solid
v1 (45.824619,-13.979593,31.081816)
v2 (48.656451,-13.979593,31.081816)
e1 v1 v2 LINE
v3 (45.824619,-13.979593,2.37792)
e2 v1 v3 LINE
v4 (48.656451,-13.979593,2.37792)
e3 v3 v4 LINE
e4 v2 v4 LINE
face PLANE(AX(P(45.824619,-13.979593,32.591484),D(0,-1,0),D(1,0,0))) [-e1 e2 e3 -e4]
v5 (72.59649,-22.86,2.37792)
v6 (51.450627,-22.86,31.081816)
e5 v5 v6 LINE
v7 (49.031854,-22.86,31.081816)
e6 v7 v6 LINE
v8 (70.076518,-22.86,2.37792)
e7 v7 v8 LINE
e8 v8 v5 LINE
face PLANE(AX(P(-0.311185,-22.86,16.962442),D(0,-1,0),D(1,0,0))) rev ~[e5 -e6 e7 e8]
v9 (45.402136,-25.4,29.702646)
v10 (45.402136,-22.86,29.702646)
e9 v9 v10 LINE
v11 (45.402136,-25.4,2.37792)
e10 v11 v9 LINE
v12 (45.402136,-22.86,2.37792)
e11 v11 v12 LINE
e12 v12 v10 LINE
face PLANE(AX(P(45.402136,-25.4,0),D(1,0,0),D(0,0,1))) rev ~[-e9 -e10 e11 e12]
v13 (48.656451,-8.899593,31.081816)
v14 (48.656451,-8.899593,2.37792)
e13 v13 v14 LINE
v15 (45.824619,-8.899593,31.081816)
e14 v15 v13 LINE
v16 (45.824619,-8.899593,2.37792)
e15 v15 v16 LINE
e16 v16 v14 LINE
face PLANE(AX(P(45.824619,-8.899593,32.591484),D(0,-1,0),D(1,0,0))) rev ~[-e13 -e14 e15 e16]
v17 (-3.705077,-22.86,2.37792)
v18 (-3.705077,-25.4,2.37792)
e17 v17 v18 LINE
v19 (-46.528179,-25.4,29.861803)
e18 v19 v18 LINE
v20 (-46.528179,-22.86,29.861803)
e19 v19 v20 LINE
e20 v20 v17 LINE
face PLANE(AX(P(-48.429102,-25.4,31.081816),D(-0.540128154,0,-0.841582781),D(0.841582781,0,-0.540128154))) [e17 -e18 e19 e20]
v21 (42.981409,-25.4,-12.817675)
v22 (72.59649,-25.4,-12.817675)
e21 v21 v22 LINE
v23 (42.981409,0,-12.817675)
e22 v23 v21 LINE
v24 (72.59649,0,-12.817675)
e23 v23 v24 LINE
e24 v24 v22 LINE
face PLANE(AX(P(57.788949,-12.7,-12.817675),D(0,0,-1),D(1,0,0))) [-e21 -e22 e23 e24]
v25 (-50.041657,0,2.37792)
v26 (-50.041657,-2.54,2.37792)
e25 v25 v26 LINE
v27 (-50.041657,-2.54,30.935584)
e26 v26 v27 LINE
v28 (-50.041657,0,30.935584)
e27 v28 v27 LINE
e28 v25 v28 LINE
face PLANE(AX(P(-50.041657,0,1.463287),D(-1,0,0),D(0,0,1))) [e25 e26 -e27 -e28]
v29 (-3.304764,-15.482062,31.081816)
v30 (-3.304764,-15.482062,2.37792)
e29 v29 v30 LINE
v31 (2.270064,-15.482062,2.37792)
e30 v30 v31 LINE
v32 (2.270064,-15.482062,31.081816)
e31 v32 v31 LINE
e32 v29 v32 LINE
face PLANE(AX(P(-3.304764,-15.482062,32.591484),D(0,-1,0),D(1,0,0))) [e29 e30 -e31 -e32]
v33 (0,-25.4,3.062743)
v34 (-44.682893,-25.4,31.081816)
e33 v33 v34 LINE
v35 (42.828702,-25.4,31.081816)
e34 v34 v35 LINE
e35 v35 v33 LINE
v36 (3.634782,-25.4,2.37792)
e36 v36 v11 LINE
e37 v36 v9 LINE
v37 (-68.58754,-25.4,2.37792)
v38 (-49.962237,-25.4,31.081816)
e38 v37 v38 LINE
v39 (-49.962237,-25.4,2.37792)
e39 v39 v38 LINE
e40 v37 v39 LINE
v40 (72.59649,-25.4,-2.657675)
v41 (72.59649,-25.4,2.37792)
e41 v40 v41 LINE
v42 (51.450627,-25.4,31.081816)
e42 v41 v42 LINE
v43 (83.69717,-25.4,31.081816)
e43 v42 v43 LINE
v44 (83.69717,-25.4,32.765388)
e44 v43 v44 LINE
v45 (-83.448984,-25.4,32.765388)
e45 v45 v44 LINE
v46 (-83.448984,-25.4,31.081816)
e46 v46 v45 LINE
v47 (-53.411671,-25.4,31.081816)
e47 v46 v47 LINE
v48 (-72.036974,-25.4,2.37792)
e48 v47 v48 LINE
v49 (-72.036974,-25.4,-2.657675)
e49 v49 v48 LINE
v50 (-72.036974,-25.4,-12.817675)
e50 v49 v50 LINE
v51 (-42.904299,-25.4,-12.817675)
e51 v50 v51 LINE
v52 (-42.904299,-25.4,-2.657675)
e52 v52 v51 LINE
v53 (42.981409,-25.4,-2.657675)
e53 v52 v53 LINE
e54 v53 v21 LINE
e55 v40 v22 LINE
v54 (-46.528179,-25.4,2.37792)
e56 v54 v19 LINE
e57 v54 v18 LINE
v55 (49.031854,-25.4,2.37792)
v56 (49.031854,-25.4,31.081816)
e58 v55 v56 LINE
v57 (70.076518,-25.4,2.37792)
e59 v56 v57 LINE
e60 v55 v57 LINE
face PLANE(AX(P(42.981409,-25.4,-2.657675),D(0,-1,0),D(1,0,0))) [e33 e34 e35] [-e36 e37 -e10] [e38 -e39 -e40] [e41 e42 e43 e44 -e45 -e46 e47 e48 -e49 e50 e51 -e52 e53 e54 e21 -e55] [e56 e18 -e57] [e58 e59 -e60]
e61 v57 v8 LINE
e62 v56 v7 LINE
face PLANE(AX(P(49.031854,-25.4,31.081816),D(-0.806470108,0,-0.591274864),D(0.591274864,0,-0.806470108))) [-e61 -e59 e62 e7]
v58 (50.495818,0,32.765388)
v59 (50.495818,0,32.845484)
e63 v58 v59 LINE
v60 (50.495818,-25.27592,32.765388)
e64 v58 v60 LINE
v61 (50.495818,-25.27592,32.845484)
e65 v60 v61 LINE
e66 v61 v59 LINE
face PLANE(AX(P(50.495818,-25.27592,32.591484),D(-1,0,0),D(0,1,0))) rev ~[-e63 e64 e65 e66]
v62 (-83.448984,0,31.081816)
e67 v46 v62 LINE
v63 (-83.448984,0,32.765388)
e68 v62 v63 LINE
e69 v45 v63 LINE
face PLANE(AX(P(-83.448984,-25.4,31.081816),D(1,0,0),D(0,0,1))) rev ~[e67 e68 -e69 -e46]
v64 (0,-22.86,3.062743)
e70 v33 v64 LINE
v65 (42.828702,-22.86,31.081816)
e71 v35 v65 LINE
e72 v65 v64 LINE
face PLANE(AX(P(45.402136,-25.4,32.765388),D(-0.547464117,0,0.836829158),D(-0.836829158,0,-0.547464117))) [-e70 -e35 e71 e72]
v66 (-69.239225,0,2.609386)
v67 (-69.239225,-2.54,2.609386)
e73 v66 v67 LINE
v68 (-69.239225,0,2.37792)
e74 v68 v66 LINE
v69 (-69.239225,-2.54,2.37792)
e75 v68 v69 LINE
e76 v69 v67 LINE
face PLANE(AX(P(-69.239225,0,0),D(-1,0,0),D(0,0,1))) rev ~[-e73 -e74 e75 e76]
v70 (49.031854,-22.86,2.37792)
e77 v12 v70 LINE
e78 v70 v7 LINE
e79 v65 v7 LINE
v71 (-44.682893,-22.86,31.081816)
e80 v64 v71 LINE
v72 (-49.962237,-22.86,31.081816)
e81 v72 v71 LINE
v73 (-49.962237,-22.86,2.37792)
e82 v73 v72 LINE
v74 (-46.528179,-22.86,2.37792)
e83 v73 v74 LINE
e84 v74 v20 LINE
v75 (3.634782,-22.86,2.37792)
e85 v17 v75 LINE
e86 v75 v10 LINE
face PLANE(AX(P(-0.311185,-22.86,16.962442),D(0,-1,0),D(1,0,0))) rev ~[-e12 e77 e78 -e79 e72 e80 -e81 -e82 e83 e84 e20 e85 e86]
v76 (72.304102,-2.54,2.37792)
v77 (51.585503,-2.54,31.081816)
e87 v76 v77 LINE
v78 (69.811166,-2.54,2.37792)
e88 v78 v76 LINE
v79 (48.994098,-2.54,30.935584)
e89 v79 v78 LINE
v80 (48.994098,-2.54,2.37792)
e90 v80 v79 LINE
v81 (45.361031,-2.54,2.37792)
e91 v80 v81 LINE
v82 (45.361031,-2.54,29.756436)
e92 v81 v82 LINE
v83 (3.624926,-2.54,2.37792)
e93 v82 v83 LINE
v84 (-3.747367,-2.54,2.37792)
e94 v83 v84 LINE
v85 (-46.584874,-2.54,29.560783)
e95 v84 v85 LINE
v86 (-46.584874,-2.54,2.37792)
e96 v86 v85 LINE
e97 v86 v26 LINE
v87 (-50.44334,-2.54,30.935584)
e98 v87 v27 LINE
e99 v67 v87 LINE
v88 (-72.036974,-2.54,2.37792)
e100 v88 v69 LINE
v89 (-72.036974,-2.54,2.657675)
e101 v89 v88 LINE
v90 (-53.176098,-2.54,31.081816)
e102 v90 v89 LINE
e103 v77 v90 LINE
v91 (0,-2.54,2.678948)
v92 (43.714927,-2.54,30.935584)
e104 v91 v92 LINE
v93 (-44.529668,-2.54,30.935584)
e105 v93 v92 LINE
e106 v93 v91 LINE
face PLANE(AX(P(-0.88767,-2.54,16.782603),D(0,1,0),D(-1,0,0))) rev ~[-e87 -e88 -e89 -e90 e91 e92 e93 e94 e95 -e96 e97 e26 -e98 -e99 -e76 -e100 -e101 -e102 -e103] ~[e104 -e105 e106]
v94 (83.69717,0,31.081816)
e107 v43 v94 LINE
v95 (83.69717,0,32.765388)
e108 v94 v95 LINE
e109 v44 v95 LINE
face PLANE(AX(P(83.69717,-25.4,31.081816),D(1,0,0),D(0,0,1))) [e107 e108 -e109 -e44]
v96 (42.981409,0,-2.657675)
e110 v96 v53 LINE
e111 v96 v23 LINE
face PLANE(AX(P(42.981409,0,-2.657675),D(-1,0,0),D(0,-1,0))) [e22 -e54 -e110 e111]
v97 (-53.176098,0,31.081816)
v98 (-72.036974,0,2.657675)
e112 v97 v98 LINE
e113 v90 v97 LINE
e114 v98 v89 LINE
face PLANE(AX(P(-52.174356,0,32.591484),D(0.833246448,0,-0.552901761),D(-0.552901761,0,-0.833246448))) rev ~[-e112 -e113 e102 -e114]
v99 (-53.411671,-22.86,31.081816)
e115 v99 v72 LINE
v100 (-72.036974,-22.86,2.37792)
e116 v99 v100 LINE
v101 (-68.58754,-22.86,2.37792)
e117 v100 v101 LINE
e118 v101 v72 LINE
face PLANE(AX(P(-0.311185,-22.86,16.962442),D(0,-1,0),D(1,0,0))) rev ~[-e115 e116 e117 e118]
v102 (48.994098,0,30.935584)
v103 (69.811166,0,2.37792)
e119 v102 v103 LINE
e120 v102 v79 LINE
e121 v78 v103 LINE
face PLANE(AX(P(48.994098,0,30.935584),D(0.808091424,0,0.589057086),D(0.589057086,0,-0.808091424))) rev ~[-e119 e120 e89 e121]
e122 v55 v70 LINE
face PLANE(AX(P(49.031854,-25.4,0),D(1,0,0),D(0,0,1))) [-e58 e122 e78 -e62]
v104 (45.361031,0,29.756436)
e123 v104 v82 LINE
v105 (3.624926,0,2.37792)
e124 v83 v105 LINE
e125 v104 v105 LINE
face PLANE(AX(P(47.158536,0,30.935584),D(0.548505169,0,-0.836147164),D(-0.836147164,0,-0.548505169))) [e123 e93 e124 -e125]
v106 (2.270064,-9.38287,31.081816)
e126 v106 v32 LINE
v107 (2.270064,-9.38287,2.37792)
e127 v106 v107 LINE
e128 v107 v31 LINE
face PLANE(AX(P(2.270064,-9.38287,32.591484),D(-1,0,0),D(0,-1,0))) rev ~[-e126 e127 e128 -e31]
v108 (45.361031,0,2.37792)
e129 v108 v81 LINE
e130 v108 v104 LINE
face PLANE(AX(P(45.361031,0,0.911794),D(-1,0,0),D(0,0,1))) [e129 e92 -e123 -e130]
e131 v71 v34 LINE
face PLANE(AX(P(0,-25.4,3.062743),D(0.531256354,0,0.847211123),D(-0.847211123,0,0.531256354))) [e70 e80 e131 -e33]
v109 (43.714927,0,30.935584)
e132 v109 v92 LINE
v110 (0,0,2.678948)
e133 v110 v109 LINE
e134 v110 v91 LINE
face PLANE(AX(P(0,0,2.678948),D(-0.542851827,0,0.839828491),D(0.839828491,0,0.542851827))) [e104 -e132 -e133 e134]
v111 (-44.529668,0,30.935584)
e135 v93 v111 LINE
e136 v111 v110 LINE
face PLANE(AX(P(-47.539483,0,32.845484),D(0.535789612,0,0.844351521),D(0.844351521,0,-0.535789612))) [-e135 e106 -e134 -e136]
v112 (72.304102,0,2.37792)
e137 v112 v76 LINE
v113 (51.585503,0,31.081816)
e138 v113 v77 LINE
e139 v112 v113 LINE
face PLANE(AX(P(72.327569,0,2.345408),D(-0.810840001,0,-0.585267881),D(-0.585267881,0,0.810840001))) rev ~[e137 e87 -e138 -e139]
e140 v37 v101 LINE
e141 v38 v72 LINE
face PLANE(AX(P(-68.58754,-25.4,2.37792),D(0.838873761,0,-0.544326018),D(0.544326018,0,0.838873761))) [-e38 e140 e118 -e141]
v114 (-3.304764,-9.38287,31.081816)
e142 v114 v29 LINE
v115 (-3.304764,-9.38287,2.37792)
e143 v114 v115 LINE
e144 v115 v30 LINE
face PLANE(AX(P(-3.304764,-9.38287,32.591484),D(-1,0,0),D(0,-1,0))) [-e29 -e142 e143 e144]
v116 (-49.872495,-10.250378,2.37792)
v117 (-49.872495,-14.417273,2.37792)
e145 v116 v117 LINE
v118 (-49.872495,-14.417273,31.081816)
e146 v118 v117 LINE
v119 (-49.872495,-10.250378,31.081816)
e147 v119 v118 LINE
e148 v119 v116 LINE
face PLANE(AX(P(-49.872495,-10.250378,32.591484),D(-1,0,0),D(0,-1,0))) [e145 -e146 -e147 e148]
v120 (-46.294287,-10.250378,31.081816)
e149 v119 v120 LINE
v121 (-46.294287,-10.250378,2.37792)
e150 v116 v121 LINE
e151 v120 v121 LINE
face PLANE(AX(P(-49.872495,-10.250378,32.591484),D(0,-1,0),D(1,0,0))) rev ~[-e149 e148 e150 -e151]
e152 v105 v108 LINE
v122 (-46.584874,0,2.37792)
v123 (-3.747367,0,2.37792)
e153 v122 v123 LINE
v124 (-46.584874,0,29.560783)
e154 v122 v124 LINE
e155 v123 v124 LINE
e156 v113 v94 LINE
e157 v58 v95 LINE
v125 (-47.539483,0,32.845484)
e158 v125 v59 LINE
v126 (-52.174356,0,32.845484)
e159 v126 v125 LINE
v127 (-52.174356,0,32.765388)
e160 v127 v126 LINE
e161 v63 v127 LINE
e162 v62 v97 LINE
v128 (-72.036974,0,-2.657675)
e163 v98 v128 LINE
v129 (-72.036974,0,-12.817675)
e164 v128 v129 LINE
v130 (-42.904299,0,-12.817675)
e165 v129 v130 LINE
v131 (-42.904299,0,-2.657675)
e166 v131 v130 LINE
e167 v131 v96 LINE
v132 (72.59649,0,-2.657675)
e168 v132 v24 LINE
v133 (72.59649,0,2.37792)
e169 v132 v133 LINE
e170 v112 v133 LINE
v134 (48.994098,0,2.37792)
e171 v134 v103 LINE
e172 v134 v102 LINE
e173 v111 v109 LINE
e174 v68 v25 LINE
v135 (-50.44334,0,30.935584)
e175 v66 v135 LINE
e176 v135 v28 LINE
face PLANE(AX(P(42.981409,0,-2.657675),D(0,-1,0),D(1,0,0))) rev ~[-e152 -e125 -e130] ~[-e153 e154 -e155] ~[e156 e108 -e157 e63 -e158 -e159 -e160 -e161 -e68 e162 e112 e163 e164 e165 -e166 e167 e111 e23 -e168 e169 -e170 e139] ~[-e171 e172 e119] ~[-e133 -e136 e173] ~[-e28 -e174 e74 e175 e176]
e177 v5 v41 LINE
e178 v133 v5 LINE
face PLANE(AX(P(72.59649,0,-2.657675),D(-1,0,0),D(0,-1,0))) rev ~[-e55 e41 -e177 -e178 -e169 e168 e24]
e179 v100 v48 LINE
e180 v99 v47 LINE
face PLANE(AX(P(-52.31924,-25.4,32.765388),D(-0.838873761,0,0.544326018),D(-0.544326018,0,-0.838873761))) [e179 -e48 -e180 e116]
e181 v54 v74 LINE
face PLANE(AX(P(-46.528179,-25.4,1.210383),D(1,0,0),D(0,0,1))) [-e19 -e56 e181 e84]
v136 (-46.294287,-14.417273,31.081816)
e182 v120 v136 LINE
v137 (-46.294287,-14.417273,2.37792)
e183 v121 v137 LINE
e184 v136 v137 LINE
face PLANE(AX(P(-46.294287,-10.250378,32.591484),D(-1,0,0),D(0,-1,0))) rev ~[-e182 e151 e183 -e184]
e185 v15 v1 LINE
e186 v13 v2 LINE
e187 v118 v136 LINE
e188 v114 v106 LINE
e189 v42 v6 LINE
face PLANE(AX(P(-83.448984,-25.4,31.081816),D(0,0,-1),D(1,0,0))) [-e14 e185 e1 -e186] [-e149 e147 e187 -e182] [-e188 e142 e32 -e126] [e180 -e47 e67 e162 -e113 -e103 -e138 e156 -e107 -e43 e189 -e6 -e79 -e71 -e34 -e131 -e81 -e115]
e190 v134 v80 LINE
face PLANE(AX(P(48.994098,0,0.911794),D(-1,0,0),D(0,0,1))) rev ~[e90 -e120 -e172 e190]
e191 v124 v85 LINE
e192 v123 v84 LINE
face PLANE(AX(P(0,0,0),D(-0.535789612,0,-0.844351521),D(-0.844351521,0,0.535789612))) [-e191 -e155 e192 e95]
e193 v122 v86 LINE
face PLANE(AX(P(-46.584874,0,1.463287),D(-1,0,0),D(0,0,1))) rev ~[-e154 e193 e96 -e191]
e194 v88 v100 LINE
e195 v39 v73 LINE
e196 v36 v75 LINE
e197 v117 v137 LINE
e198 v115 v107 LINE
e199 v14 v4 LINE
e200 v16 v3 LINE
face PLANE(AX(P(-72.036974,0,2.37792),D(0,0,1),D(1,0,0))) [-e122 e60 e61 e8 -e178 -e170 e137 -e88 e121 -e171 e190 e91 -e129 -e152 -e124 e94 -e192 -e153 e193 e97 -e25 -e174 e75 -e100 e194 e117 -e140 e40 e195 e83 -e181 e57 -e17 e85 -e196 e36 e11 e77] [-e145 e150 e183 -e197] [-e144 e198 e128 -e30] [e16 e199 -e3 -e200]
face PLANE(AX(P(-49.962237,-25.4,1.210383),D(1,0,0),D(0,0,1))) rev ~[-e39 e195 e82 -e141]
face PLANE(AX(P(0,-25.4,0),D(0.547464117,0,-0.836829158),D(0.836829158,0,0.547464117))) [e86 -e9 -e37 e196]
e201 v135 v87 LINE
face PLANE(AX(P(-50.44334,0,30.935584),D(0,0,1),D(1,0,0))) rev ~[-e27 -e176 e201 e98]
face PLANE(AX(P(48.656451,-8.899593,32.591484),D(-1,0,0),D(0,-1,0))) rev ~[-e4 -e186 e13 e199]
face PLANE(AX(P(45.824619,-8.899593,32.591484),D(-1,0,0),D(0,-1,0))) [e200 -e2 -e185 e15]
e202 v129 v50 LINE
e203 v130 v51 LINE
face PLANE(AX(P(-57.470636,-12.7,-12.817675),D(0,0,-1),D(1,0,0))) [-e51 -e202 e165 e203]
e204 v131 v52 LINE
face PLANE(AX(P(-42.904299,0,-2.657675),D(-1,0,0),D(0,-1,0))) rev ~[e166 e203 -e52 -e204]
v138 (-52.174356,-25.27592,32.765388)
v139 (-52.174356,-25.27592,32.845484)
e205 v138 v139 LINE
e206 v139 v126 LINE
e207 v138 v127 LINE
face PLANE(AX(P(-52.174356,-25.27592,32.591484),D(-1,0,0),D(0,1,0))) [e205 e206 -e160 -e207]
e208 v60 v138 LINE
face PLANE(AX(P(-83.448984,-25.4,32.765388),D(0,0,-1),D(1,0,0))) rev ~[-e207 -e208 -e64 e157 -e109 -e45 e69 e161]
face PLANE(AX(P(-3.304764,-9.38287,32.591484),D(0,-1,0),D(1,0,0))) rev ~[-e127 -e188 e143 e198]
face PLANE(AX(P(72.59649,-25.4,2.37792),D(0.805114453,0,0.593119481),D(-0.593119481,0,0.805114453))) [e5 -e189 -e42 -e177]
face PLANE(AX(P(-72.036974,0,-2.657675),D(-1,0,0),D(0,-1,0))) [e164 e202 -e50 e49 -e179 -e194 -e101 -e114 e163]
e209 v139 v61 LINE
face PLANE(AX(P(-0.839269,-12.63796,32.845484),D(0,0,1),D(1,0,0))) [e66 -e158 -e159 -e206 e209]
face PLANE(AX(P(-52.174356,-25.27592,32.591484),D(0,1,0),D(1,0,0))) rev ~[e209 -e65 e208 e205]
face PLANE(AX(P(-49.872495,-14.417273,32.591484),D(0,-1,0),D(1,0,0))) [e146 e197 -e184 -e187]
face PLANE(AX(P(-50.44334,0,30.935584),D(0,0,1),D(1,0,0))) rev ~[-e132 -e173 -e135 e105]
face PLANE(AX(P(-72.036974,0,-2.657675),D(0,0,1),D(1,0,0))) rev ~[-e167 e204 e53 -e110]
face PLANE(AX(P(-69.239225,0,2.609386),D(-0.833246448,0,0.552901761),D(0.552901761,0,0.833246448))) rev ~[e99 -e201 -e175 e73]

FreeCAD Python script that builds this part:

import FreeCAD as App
import Part
import Sketcher
Q = App.Units.Quantity

doc = App.newDocument("Part")
params = doc.addObject("Spreadsheet::Sheet", "Params")
for row, (alias, value) in enumerate([
    ("pad1_length", "1 in"),
    ("pad2_length", "0.1 in"),
    ("pad3_length", "0.1 in"),
    ("pad4_length", "0.01 in"),
    ("pad5_length", "0.1 in"),
    ("pad6_length", "0.1 in"),
    ("pad7_length", "0.1 in"),
    ("pad8_length", "0.1 in"),
    ("pad9_length", "0.1 in"),
    ("pad10_length", "0.1 in"),
    ("pad11_length", "1.3 in"),
    ("pad12_length", "1.3 in"),
    ("sketch13_height", "0.2 in"),
    ("pad13_length", "1.3 in"),
    ("pad14_length", "1 in"),
    ("sketch15_height", "1 in"),
    ("pad15_length", "0.4 in"),
    ("sketch16_height", "1 in"),
    ("pad16_length", "0.4 in"),
], start=1):
    params.set(f"A{row}", alias)
    params.set(f"B{row}", "=" + value)
    params.setAlias(f"B{row}", alias)

body = doc.addObject("PartDesign::Body", "Body")

# Sketch on XZ plane
sketch1 = body.newObject("Sketcher::SketchObject", "Sketch")
sketch1.AttachmentSupport = (doc.getObject("XZ_Plane"), [""])
sketch1.MapMode = "FlatFace"
sketch1.addGeometry([
    Part.LineSegment(App.Vector(-72, 2, 0), App.Vector(-72, -3, 0)),
    Part.LineSegment(App.Vector(-72, -3, 0), App.Vector(73, -3, 0)),
    Part.LineSegment(App.Vector(73, -3, 0), App.Vector(73, 2, 0)),
    Part.LineSegment(App.Vector(73, 2, 0), App.Vector(-72, 2, 0)),
], False)
sketch1.addConstraint([
    Sketcher.Constraint("Coincident", 0, 2, 1, 1),
    Sketcher.Constraint("Coincident", 1, 2, 2, 1),
    Sketcher.Constraint("Coincident", 2, 2, 3, 1),
    Sketcher.Constraint("Coincident", 3, 2, 0, 1),
    Sketcher.Constraint("Vertical", 0),
    Sketcher.Constraint("Horizontal", 1),
    Sketcher.Constraint("Vertical", 2),
    Sketcher.Constraint("Horizontal", 3),
    Sketcher.Constraint("DistanceX", 1, 1, 1, 2, Q("144.633465 mm")),
    Sketcher.Constraint("DistanceY", 0, 2, 0, 1, Q("5.035594 mm")),
    Sketcher.Constraint("DistanceX", -1, 1, 1, 2, Q("72.59649 mm")),
    Sketcher.Constraint("DistanceY", -1, 1, 2, 2, Q("2.37792 mm")),
])
pad1 = body.newObject("PartDesign::Pad", "Pad")
pad1.Profile = sketch1
pad1.setExpression("Length", "Params.pad1_length")

# Sketch on XZ plane
sketch2 = body.newObject("Sketcher::SketchObject", "Sketch001")
sketch2.AttachmentSupport = (doc.getObject("XZ_Plane"), [""])
sketch2.MapMode = "FlatFace"
sketch2.addGeometry([
    Part.LineSegment(App.Vector(-72, 2.7, 0), App.Vector(-72, 0, 0)),  # 0
    Part.LineSegment(App.Vector(-72, 0, 0), App.Vector(-69.2, 0, 0)),  # 1
    Part.LineSegment(App.Vector(-69.2, 0, 0), App.Vector(-69.2, 2.6, 0)),  # 2
    Part.LineSegment(App.Vector(-69.2, 2.6, 0), App.Vector(-50.4, 30.9, 0)),  # 3
    Part.LineSegment(App.Vector(-50.4, 30.9, 0), App.Vector(49, 30.9, 0)),  # 4
    Part.LineSegment(App.Vector(49, 30.9, 0), App.Vector(70, 2.1, 0)),  # 5
    Part.LineSegment(App.Vector(70, 2.1, 0), App.Vector(70, 0, 0)),  # 6
    Part.LineSegment(App.Vector(70, 0, 0), App.Vector(72.3, 0, 0)),  # 7
    Part.LineSegment(App.Vector(72.3, 0, 0), App.Vector(72.3, 2.3, 0)),  # 8
    Part.LineSegment(App.Vector(72.3, 2.3, 0), App.Vector(50.5, 32.6, 0)),  # 9
    Part.LineSegment(App.Vector(50.5, 32.6, 0), App.Vector(-52.2, 32.6, 0)),  # 10
    Part.LineSegment(App.Vector(-52.2, 32.6, 0), App.Vector(-72, 2.7, 0)),  # 11
], False)
sketch2.addConstraint([
    Sketcher.Constraint("Coincident", 0, 2, 1, 1),
    Sketcher.Constraint("Coincident", 1, 2, 2, 1),
    Sketcher.Constraint("Coincident", 2, 2, 3, 1),
    Sketcher.Constraint("Coincident", 3, 2, 4, 1),
    Sketcher.Constraint("Coincident", 4, 2, 5, 1),
    Sketcher.Constraint("Coincident", 5, 2, 6, 1),
    Sketcher.Constraint("Coincident", 6, 2, 7, 1),
    Sketcher.Constraint("Coincident", 7, 2, 8, 1),
    Sketcher.Constraint("Coincident", 8, 2, 9, 1),
    Sketcher.Constraint("Coincident", 9, 2, 10, 1),
    Sketcher.Constraint("Coincident", 10, 2, 11, 1),
    Sketcher.Constraint("Coincident", 11, 2, 0, 1),
    Sketcher.Constraint("Vertical", 0),
    Sketcher.Constraint("Horizontal", 1),
    Sketcher.Constraint("Vertical", 2),
    Sketcher.Constraint("Horizontal", 4),
    Sketcher.Constraint("Vertical", 6),
    Sketcher.Constraint("Horizontal", 7),
    Sketcher.Constraint("Vertical", 8),
    Sketcher.Constraint("Horizontal", 10),
    Sketcher.Constraint("PointOnObject", 0, 2, -1),
    Sketcher.Constraint("PointOnObject", 6, 2, -1),
    Sketcher.Constraint("Parallel", 3, 11),
    Sketcher.Constraint("DistanceX", 1, 1, 1, 2, Q("2.797749 mm")),
    Sketcher.Constraint("DistanceY", 8, 1, 8, 2, Q("2.345408 mm")),
    Sketcher.Constraint("DistanceY", 5, 2, 4, 2, Q("28.802701 mm")),
    Sketcher.Constraint("DistanceY", 4, 2, 9, 2, Q("1.655901 mm")),
    Sketcher.Constraint("DistanceY", 2, 2, 10, 2, Q("29.982098 mm")),
    Sketcher.Constraint("Distance", 3, Q("33.994981 mm")),
    Sketcher.Constraint("Distance", 9, Q("37.302151 mm")),
    Sketcher.Constraint("DistanceX", 4, 1, 4, 2, Q("99.437438 mm")),
    Sketcher.Constraint("DistanceX", 7, 1, 7, 2, Q("2.337784 mm")),
    Sketcher.Constraint("DistanceX", 10, 2, 10, 1, Q("102.670174 mm")),
    Sketcher.Constraint("DistanceY", 0, 2, 0, 1, Q("2.657675 mm")),
    Sketcher.Constraint("DistanceY", 2, 1, 2, 2, Q("2.609386 mm")),
    Sketcher.Constraint("DistanceX", 3, 2, -1, 1, Q("50.44334 mm")),
])
pad2 = body.newObject("PartDesign::Pad", "Pad001")
pad2.Profile = sketch2
pad2.setExpression("Length", "Params.pad2_length")

# Sketch on XZ plane
sketch3 = body.newObject("Sketcher::SketchObject", "Sketch002")
sketch3.AttachmentSupport = (doc.getObject("XZ_Plane"), [""])
sketch3.MapMode = "FlatFace"
sketch3.AttachmentOffset = App.Placement(App.Vector(0, 0, 1 * 25.4), App.Rotation())
sketch3.addGeometry([
    Part.LineSegment(App.Vector(-72, 2.4, 0), App.Vector(-72, -0.1, 0)),  # 0
    Part.LineSegment(App.Vector(-72, -0.1, 0), App.Vector(-68.6, 0, 0)),  # 1
    Part.LineSegment(App.Vector(-68.6, 0, 0), App.Vector(-68.6, 2.4, 0)),  # 2
    Part.LineSegment(App.Vector(-68.6, 2.4, 0), App.Vector(-50, 31.1, 0)),  # 3
    Part.LineSegment(App.Vector(-50, 31.1, 0), App.Vector(49, 31.1, 0)),  # 4
    Part.LineSegment(App.Vector(49, 31.1, 0), App.Vector(70.1, 2.4, 0)),  # 5
    Part.LineSegment(App.Vector(70.1, 2.4, 0), App.Vector(70.1, 0, 0)),  # 6
    Part.LineSegment(App.Vector(70.1, 0, 0), App.Vector(72.6, 0, 0)),  # 7
    Part.LineSegment(App.Vector(72.6, 0, 0), App.Vector(72.6, 2.4, 0)),  # 8
    Part.LineSegment(App.Vector(72.6, 2.4, 0), App.Vector(50.2, 32.8, 0)),  # 9
    Part.LineSegment(App.Vector(50.2, 32.8, 0), App.Vector(-52.3, 32.8, 0)),  # 10
    Part.LineSegment(App.Vector(-52.3, 32.8, 0), App.Vector(-72, 2.4, 0)),  # 11
], False)
sketch3.addConstraint([
    Sketcher.Constraint("Coincident", 0, 2, 1, 1),
    Sketcher.Constraint("Coincident", 1, 2, 2, 1),
    Sketcher.Constraint("Coincident", 2, 2, 3, 1),
    Sketcher.Constraint("Coincident", 3, 2, 4, 1),
    Sketcher.Constraint("Coincident", 4, 2, 5, 1),
    Sketcher.Constraint("Coincident", 5, 2, 6, 1),
    Sketcher.Constraint("Coincident", 6, 2, 7, 1),
    Sketcher.Constraint("Coincident", 7, 2, 8, 1),
    Sketcher.Constraint("Coincident", 8, 2, 9, 1),
    Sketcher.Constraint("Coincident", 9, 2, 10, 1),
    Sketcher.Constraint("Coincident", 10, 2, 11, 1),
    Sketcher.Constraint("Coincident", 11, 2, 0, 1),
    Sketcher.Constraint("Vertical", 0),
    Sketcher.Constraint("Vertical", 2),
    Sketcher.Constraint("Horizontal", 4),
    Sketcher.Constraint("Vertical", 6),
    Sketcher.Constraint("Horizontal", 7),
    Sketcher.Constraint("Vertical", 8),
    Sketcher.Constraint("Horizontal", 10),
    Sketcher.Constraint("PointOnObject", 1, 2, -1),
    Sketcher.Constraint("PointOnObject", 6, 2, -1),
    Sketcher.Constraint("Parallel", 3, 11),
    Sketcher.Constraint("Horizontal", 2, 2, 5, 2),
    Sketcher.Constraint("Horizontal", 5, 2, 8, 2),
    Sketcher.Constraint("Horizontal", 8, 2, 11, 2),
    Sketcher.Constraint("DistanceX", 4, 1, 4, 2, Q("98.994091 mm")),
    Sketcher.Constraint("DistanceY", 2, 1, 2, 2, Q("2.37792 mm")),
    Sketcher.Constraint("DistanceX", 2, 2, 10, 2, Q("16.2683 mm")),
    Sketcher.Constraint("Distance", 1, Q("3.452269 mm")),
    Sketcher.Constraint("DistanceX", 7, 1, 7, 2, Q("2.519973 mm")),
    Sketcher.Constraint("DistanceX", 10, 2, 10, 1, Q("102.529597 mm")),
    Sketcher.Constraint("DistanceY", 0, 2, 0, 1, Q("2.517797 mm")),
    Sketcher.Constraint("DistanceX", 1, 2, -1, 1, Q("68.58754 mm")),
    Sketcher.Constraint("DistanceX", -1, 1, 7, 2, Q("72.59649 mm")),
    Sketcher.Constraint("DistanceY", -1, 1, 9, 2, Q("32.765388 mm")),
    Sketcher.Constraint("Distance", 3, Q("34.217183 mm")),
])
pad3 = body.newObject("PartDesign::Pad", "Pad002")
pad3.Profile = sketch3
pad3.setExpression("Length", "Params.pad3_length")
pad3.Reversed = True

# Sketch on XY plane
sketch4 = body.newObject("Sketcher::SketchObject", "Sketch003")
sketch4.AttachmentSupport = (doc.getObject("XY_Plane"), [""])
sketch4.MapMode = "FlatFace"
sketch4.AttachmentOffset = App.Placement(App.Vector(0, 0, 32.591484), App.Rotation())
sketch4.addGeometry([
    Part.LineSegment(App.Vector(-52, 0, 0), App.Vector(-52, -25, 0)),
    Part.LineSegment(App.Vector(-52, -25, 0), App.Vector(50, -25, 0)),
    Part.LineSegment(App.Vector(50, -25, 0), App.Vector(50, 0, 0)),
    Part.LineSegment(App.Vector(50, 0, 0), App.Vector(-52, 0, 0)),
], False)
sketch4.addConstraint([
    Sketcher.Constraint("Coincident", 0, 2, 1, 1),
    Sketcher.Constraint("Coincident", 1, 2, 2, 1),
    Sketcher.Constraint("Coincident", 2, 2, 3, 1),
    Sketcher.Constraint("Coincident", 3, 2, 0, 1),
    Sketcher.Constraint("Vertical", 0),
    Sketcher.Constraint("Horizontal", 1),
    Sketcher.Constraint("Vertical", 2),
    Sketcher.Constraint("Horizontal", 3),
    Sketcher.Constraint("PointOnObject", 2, 2, -1),
    Sketcher.Constraint("DistanceY", 0, 2, 0, 1, Q("25.27592 mm")),
    Sketcher.Constraint("DistanceX", 1, 1, 1, 2, Q("102.670174 mm")),
    Sketcher.Constraint("DistanceX", -1, 1, 1, 2, Q("50.495818 mm")),
])
pad4 = body.newObject("PartDesign::Pad", "Pad003")
pad4.Profile = sketch4
pad4.setExpression("Length", "Params.pad4_length")

# Sketch on XZ plane
sketch5 = body.newObject("Sketcher::SketchObject", "Sketch004")
sketch5.AttachmentSupport = (doc.getObject("XZ_Plane"), [""])
sketch5.MapMode = "FlatFace"
sketch5.AttachmentOffset = App.Placement(App.Vector(0, 0, 1 * 25.4), App.Rotation())
sketch5.addGeometry([
    Part.LineSegment(App.Vector(-50, 32, 0), App.Vector(-50, 1.2, 0)),
    Part.LineSegment(App.Vector(-50, 1.2, 0), App.Vector(-46.5, 1.2, 0)),
    Part.LineSegment(App.Vector(-46.5, 1.2, 0), App.Vector(-46.5, 32, 0)),
    Part.LineSegment(App.Vector(-46.5, 32, 0), App.Vector(-50, 32, 0)),
], False)
sketch5.addConstraint([
    Sketcher.Constraint("Coincident", 0, 2, 1, 1),
    Sketcher.Constraint("Coincident", 1, 2, 2, 1),
    Sketcher.Constraint("Coincident", 2, 2, 3, 1),
    Sketcher.Constraint("Coincident", 3, 2, 0, 1),
    Sketcher.Constraint("Vertical", 0),
    Sketcher.Constraint("Horizontal", 1),
    Sketcher.Constraint("Vertical", 2),
    Sketcher.Constraint("Horizontal", 3),
    Sketcher.Constraint("DistanceX", 1, 1, 1, 2, Q("3.434058 mm")),
    Sketcher.Constraint("DistanceY", 0, 2, 0, 1, Q("30.774855 mm")),
    Sketcher.Constraint("DistanceX", 1, 2, -1, 1, Q("46.528179 mm")),
    Sketcher.Constraint("DistanceY", -1, 1, 2, 2, Q("31.985238 mm")),
])
pad5 = body.newObject("PartDesign::Pad", "Pad004")
pad5.Profile = sketch5
pad5.setExpression("Length", "Params.pad5_length")
pad5.Reversed = True

# Sketch on XZ plane
sketch6 = body.newObject("Sketcher::SketchObject", "Sketch005")
sketch6.AttachmentSupport = (doc.getObject("XZ_Plane"), [""])
sketch6.MapMode = "FlatFace"
sketch6.AttachmentOffset = App.Placement(App.Vector(0, 0, 1 * 25.4), App.Rotation())
sketch6.addGeometry([
    Part.LineSegment(App.Vector(45.4, 32.1, 0), App.Vector(45.4, 0, 0)),
    Part.LineSegment(App.Vector(45.4, 0, 0), App.Vector(49, 0, 0)),
    Part.LineSegment(App.Vector(49, 0, 0), App.Vector(49, 32.1, 0)),
    Part.LineSegment(App.Vector(49, 32.1, 0), App.Vector(45.4, 32.1, 0)),
], False)
sketch6.addConstraint([
    Sketcher.Constraint("Coincident", 0, 2, 1, 1),
    Sketcher.Constraint("Coincident", 1, 2, 2, 1),
    Sketcher.Constraint("Coincident", 2, 2, 3, 1),
    Sketcher.Constraint("Coincident", 3, 2, 0, 1),
    Sketcher.Constraint("Vertical", 0),
    Sketcher.Constraint("Horizontal", 1),
    Sketcher.Constraint("Vertical", 2),
    Sketcher.Constraint("Horizontal", 3),
    Sketcher.Constraint("PointOnObject", 0, 2, -1),
    Sketcher.Constraint("DistanceX", 1, 1, 1, 2, Q("3.629718 mm")),
    Sketcher.Constraint("DistanceY", 0, 2, 0, 1, Q("32.149576 mm")),
    Sketcher.Constraint("DistanceX", -1, 1, 0, 2, Q("45.402136 mm")),
])
pad6 = body.newObject("PartDesign::Pad", "Pad005")
pad6.Profile = sketch6
pad6.setExpression("Length", "Params.pad6_length")
pad6.Reversed = True

# Sketch on XZ plane
sketch7 = body.newObject("Sketcher::SketchObject", "Sketch006")
sketch7.AttachmentSupport = (doc.getObject("XZ_Plane"), [""])
sketch7.MapMode = "FlatFace"
sketch7.addGeometry([
    Part.LineSegment(App.Vector(49, 31.9, 0), App.Vector(49, 0.9, 0)),
    Part.LineSegment(App.Vector(49, 0.9, 0), App.Vector(45.4, 0.9, 0)),
    Part.LineSegment(App.Vector(45.4, 0.9, 0), App.Vector(45.4, 31.9, 0)),
    Part.LineSegment(App.Vector(45.4, 31.9, 0), App.Vector(49, 31.9, 0)),
], False)
sketch7.addConstraint([
    Sketcher.Constraint("Coincident", 0, 2, 1, 1),
    Sketcher.Constraint("Coincident", 1, 2, 2, 1),
    Sketcher.Constraint("Coincident", 2, 2, 3, 1),
    Sketcher.Constraint("Coincident", 3, 2, 0, 1),
    Sketcher.Constraint("Vertical", 0),
    Sketcher.Constraint("Horizontal", 1),
    Sketcher.Constraint("Vertical", 2),
    Sketcher.Constraint("Horizontal", 3),
    Sketcher.Constraint("DistanceY", 0, 2, 0, 1, Q("30.970801 mm")),
    Sketcher.Constraint("DistanceX", 1, 2, 1, 1, Q("3.633067 mm")),
    Sketcher.Constraint("DistanceX", -1, 1, 1, 2, Q("45.361031 mm")),
    Sketcher.Constraint("DistanceY", -1, 1, 0, 2, Q("0.911794 mm")),
])
pad7 = body.newObject("PartDesign::Pad", "Pad006")
pad7.Profile = sketch7
pad7.setExpression("Length", "Params.pad7_length")

# Sketch on XZ plane
sketch8 = body.newObject("Sketcher::SketchObject", "Sketch007")
sketch8.AttachmentSupport = (doc.getObject("XZ_Plane"), [""])
sketch8.MapMode = "FlatFace"
sketch8.addGeometry([
    Part.LineSegment(App.Vector(-46.6, 31.9, 0), App.Vector(-46.6, 1.5, 0)),
    Part.LineSegment(App.Vector(-46.6, 1.5, 0), App.Vector(-50, 1.5, 0)),
    Part.LineSegment(App.Vector(-50, 1.5, 0), App.Vector(-50, 31.9, 0)),
    Part.LineSegment(App.Vector(-50, 31.9, 0), App.Vector(-46.6, 31.9, 0)),
], False)
sketch8.addConstraint([
    Sketcher.Constraint("Coincident", 0, 2, 1, 1),
    Sketcher.Constraint("Coincident", 1, 2, 2, 1),
    Sketcher.Constraint("Coincident", 2, 2, 3, 1),
    Sketcher.Constraint("Coincident", 3, 2, 0, 1),
    Sketcher.Constraint("Vertical", 0),
    Sketcher.Constraint("Horizontal", 1),
    Sketcher.Constraint("Vertical", 2),
    Sketcher.Constraint("Horizontal", 3),
    Sketcher.Constraint("DistanceX", 1, 2, 1, 1, Q("3.456783 mm")),
    Sketcher.Constraint("DistanceY", 0, 2, 0, 1, Q("30.419692 mm")),
    Sketcher.Constraint("DistanceY", -1, 1, 2, 2, Q("31.882979 mm")),
    Sketcher.Constraint("DistanceX", 0, 2, -1, 1, Q("46.584874 mm")),
])
pad8 = body.newObject("PartDesign::Pad", "Pad007")
pad8.Profile = sketch8
pad8.setExpression("Length", "Params.pad8_length")

# Sketch on XZ plane
sketch9 = body.newObject("Sketcher::SketchObject", "Sketch008")
sketch9.AttachmentSupport = (doc.getObject("XZ_Plane"), [""])
sketch9.MapMode = "FlatFace"
sketch9.addGeometry([
    Part.LineSegment(App.Vector(45.4, 32, 0), App.Vector(47.2, 30.9, 0)),  # 0
    Part.LineSegment(App.Vector(47.2, 30.9, 0), App.Vector(0, 0, 0)),  # 1
    Part.LineSegment(App.Vector(0, 0, 0), App.Vector(-48.8, 30.9, 0)),  # 2
    Part.LineSegment(App.Vector(-48.8, 30.9, 0), App.Vector(-47.5, 32.8, 0)),  # 3
    Part.LineSegment(App.Vector(-47.5, 32.8, 0), App.Vector(0, 2.7, 0)),  # 4
    Part.LineSegment(App.Vector(0, 2.7, 0), App.Vector(45.4, 32, 0)),  # 5
], False)
sketch9.addConstraint([
    Sketcher.Constraint("Coincident", 0, 2, 1, 1),
    Sketcher.Constraint("Coincident", 1, 2, 2, 1),
    Sketcher.Constraint("Coincident", 2, 2, 3, 1),
    Sketcher.Constraint("Coincident", 3, 2, 4, 1),
    Sketcher.Constraint("Coincident", 4, 2, 5, 1),
    Sketcher.Constraint("Coincident", 5, 2, 0, 1),
    Sketcher.Constraint("Coincident", 1, 2, -1, 1),
    Sketcher.Constraint("PointOnObject", 4, 2, -2),
    Sketcher.Constraint("Perpendicular", 2, 3),
    Sketcher.Constraint("Perpendicular", 3, 4),
    Sketcher.Constraint("Horizontal", 0, 2, 2, 2),
    Sketcher.Constraint("DistanceY", -1, 1, 5, 2, Q("31.999599 mm")),
    Sketcher.Constraint("DistanceY", 2, 2, 3, 2, Q("1.909901 mm")),
    Sketcher.Constraint("Distance", 4, Q("56.302952 mm")),
    Sketcher.Constraint("DistanceX", -1, 1, 5, 2, Q("45.361031 mm")),
    Sketcher.Constraint("DistanceX", 2, 2, 0, 2, Q("95.909961 mm")),
    Sketcher.Constraint("DistanceX", 2, 2, 3, 2, Q("1.211942 mm")),
])
pad9 = body.newObject("PartDesign::Pad", "Pad008")
pad9.Profile = sketch9
pad9.setExpression("Length", "Params.pad9_length")

# Sketch on XZ plane
sketch10 = body.newObject("Sketcher::SketchObject", "Sketch009")
sketch10.AttachmentSupport = (doc.getObject("XZ_Plane"), [""])
sketch10.MapMode = "FlatFace"
sketch10.AttachmentOffset = App.Placement(App.Vector(0, 0, 1 * 25.4), App.Rotation())
sketch10.addGeometry([
    Part.LineSegment(App.Vector(-46.5, 32.2, 0), App.Vector(-48.4, 31.1, 0)),  # 0
    Part.LineSegment(App.Vector(-48.4, 31.1, 0), App.Vector(0, 0, 0)),  # 1
    Part.LineSegment(App.Vector(0, 0, 0), App.Vector(47.5, 31.1, 0)),  # 2
    Part.LineSegment(App.Vector(47.5, 31.1, 0), App.Vector(45.4, 32.8, 0)),  # 3
    Part.LineSegment(App.Vector(45.4, 32.8, 0), App.Vector(0, 3.1, 0)),  # 4
    Part.LineSegment(App.Vector(0, 3.1, 0), App.Vector(-46.5, 32.2, 0)),  # 5
], False)
sketch10.addConstraint([
    Sketcher.Constraint("Coincident", 0, 2, 1, 1),
    Sketcher.Constraint("Coincident", 1, 2, 2, 1),
    Sketcher.Constraint("Coincident", 2, 2, 3, 1),
    Sketcher.Constraint("Coincident", 3, 2, 4, 1),
    Sketcher.Constraint("Coincident", 4, 2, 5, 1),
    Sketcher.Constraint("Coincident", 5, 2, 0, 1),
    Sketcher.Constraint("Coincident", 1, 2, -1, 1),
    Sketcher.Constraint("PointOnObject", 4, 2, -2),
    Sketcher.Constraint("Parallel", 2, 4),
    Sketcher.Constraint("Horizontal", 0, 2, 2, 2),
    Sketcher.Constraint("Distance", 3, Q("2.6979 mm")),
    Sketcher.Constraint("DistanceX", 0, 2, -1, 1, Q("48.429102 mm")),
    Sketcher.Constraint("Distance", 2, Q("56.774161 mm")),
    Sketcher.Constraint("DistanceY", -1, 1, 3, 2, Q("32.765388 mm")),
    Sketcher.Constraint("DistanceX", 5, 2, -1, 1, Q("46.528179 mm")),
    Sketcher.Constraint("DistanceY", -1, 1, 5, 2, Q("32.23893 mm")),
    Sketcher.Constraint("DistanceX", 3, 2, 2, 2, Q("2.108138 mm")),
])
pad10 = body.newObject("PartDesign::Pad", "Pad009")
pad10.Profile = sketch10
pad10.setExpression("Length", "Params.pad10_length")
pad10.Reversed = True

# Sketch on XY plane
sketch11 = body.newObject("Sketcher::SketchObject", "Sketch010")
sketch11.AttachmentSupport = (doc.getObject("XY_Plane"), [""])
sketch11.MapMode = "FlatFace"
sketch11.AttachmentOffset = App.Placement(App.Vector(0, 0, 32.591484), App.Rotation())
sketch11.addGeometry([
    Part.LineSegment(App.Vector(-3, -15, 0), App.Vector(-3, -9, 0)),
    Part.LineSegment(App.Vector(-3, -9, 0), App.Vector(2, -9, 0)),
    Part.LineSegment(App.Vector(2, -9, 0), App.Vector(2, -15, 0)),
    Part.LineSegment(App.Vector(2, -15, 0), App.Vector(-3, -15, 0)),
], False)
sketch11.addConstraint([
    Sketcher.Constraint("Coincident", 0, 2, 1, 1),
    Sketcher.Constraint("Coincident", 1, 2, 2, 1),
    Sketcher.Constraint("Coincident", 2, 2, 3, 1),
    Sketcher.Constraint("Coincident", 3, 2, 0, 1),
    Sketcher.Constraint("Vertical", 0),
    Sketcher.Constraint("Horizontal", 1),
    Sketcher.Constraint("Vertical", 2),
    Sketcher.Constraint("Horizontal", 3),
    Sketcher.Constraint("DistanceX", 1, 1, 1, 2, Q("5.574828 mm")),
    Sketcher.Constraint("DistanceY", 0, 1, 0, 2, Q("6.099192 mm")),
    Sketcher.Constraint("DistanceY", 0, 2, -1, 1, Q("9.38287 mm")),
    Sketcher.Constraint("DistanceX", 0, 2, -1, 1, Q("3.304764 mm")),
])
pad11 = body.newObject("PartDesign::Pad", "Pad010")
pad11.Profile = sketch11
pad11.setExpression("Length", "Params.pad11_length")
pad11.Reversed = True

# Sketch on XY plane
sketch12 = body.newObject("Sketcher::SketchObject", "Sketch011")
sketch12.AttachmentSupport = (doc.getObject("XY_Plane"), [""])
sketch12.MapMode = "FlatFace"
sketch12.AttachmentOffset = App.Placement(App.Vector(0, 0, 32.591484), App.Rotation())
sketch12.addGeometry([
    Part.LineSegment(App.Vector(-49.9, -14.4, 0), App.Vector(-49.9, -10.3, 0)),
    Part.LineSegment(App.Vector(-49.9, -10.3, 0), App.Vector(-46.3, -10.3, 0)),
    Part.LineSegment(App.Vector(-46.3, -10.3, 0), App.Vector(-46.3, -14.4, 0)),
    Part.LineSegment(App.Vector(-46.3, -14.4, 0), App.Vector(-49.9, -14.4, 0)),
], False)
sketch12.addConstraint([
    Sketcher.Constraint("Coincident", 0, 2, 1, 1),
    Sketcher.Constraint("Coincident", 1, 2, 2, 1),
    Sketcher.Constraint("Coincident", 2, 2, 3, 1),
    Sketcher.Constraint("Coincident", 3, 2, 0, 1),
    Sketcher.Constraint("Vertical", 0),
    Sketcher.Constraint("Horizontal", 1),
    Sketcher.Constraint("Vertical", 2),
    Sketcher.Constraint("Horizontal", 3),
    Sketcher.Constraint("DistanceX", 1, 1, 1, 2, Q("3.578208 mm")),
    Sketcher.Constraint("DistanceY", 0, 1, 0, 2, Q("4.166895 mm")),
    Sketcher.Constraint("DistanceY", 0, 2, -1, 1, Q("10.250378 mm")),
    Sketcher.Constraint("DistanceX", 0, 2, -1, 1, Q("49.872495 mm")),
])
pad12 = body.newObject("PartDesign::Pad", "Pad011")
pad12.Profile = sketch12
pad12.setExpression("Length", "Params.pad12_length")
pad12.Reversed = True

# Sketch on XY plane
sketch13 = body.newObject("Sketcher::SketchObject", "Sketch012")
sketch13.AttachmentSupport = (doc.getObject("XY_Plane"), [""])
sketch13.MapMode = "FlatFace"
sketch13.AttachmentOffset = App.Placement(App.Vector(0, 0, 32.591484), App.Rotation())
sketch13.addGeometry([
    Part.LineSegment(App.Vector(45.8, -14, 0), App.Vector(45.8, -8.9, 0)),
    Part.LineSegment(App.Vector(45.8, -8.9, 0), App.Vector(48.7, -8.9, 0)),
    Part.LineSegment(App.Vector(48.7, -8.9, 0), App.Vector(48.7, -14, 0)),
    Part.LineSegment(App.Vector(48.7, -14, 0), App.Vector(45.8, -14, 0)),
], False)
sketch13.addConstraint([
    Sketcher.Constraint("Coincident", 0, 2, 1, 1),
    Sketcher.Constraint("Coincident", 1, 2, 2, 1),
    Sketcher.Constraint("Coincident", 2, 2, 3, 1),
    Sketcher.Constraint("Coincident", 3, 2, 0, 1),
    Sketcher.Constraint("Vertical", 0),
    Sketcher.Constraint("Horizontal", 1),
    Sketcher.Constraint("Vertical", 2),
    Sketcher.Constraint("Horizontal", 3),
    Sketcher.Constraint("DistanceY", 0, 1, 0, 2, Q("0.2 in")),
    Sketcher.Constraint("DistanceX", 1, 1, 1, 2, Q("2.831832 mm")),
    Sketcher.Constraint("DistanceX", -1, 1, 0, 2, Q("45.824619 mm")),
    Sketcher.Constraint("DistanceY", 0, 2, -1, 1, Q("8.899593 mm")),
])
sketch13.setExpression("Constraints[8]", "Params.sketch13_height")
pad13 = body.newObject("PartDesign::Pad", "Pad012")
pad13.Profile = sketch13
pad13.setExpression("Length", "Params.pad13_length")
pad13.Reversed = True

# Sketch on XZ plane
sketch14 = body.newObject("Sketcher::SketchObject", "Sketch013")
sketch14.AttachmentSupport = (doc.getObject("XZ_Plane"), [""])
sketch14.MapMode = "FlatFace"
sketch14.AttachmentOffset = App.Placement(App.Vector(0, 0, 1 * 25.4), App.Rotation())
sketch14.addGeometry([
    Part.LineSegment(App.Vector(-83.4, 32.8, 0), App.Vector(-83.4, 31.1, 0)),
    Part.LineSegment(App.Vector(-83.4, 31.1, 0), App.Vector(83.7, 31.1, 0)),
    Part.LineSegment(App.Vector(83.7, 31.1, 0), App.Vector(83.7, 32.8, 0)),
    Part.LineSegment(App.Vector(83.7, 32.8, 0), App.Vector(-83.4, 32.8, 0)),
], False)
sketch14.addConstraint([
    Sketcher.Constraint("Coincident", 0, 2, 1, 1),
    Sketcher.Constraint("Coincident", 1, 2, 2, 1),
    Sketcher.Constraint("Coincident", 2, 2, 3, 1),
    Sketcher.Constraint("Coincident", 3, 2, 0, 1),
    Sketcher.Constraint("Vertical", 0),
    Sketcher.Constraint("Horizontal", 1),
    Sketcher.Constraint("Vertical", 2),
    Sketcher.Constraint("Horizontal", 3),
    Sketcher.Constraint("DistanceX", 1, 1, 1, 2, Q("167.146154 mm")),
    Sketcher.Constraint("DistanceY", 0, 2, 0, 1, Q("1.683572 mm")),
    Sketcher.Constraint("DistanceX", -1, 1, 1, 2, Q("83.69717 mm")),
    Sketcher.Constraint("DistanceY", -1, 1, 2, 2, Q("32.765388 mm")),
])
pad14 = body.newObject("PartDesign::Pad", "Pad013")
pad14.Profile = sketch14
pad14.setExpression("Length", "Params.pad14_length")
pad14.Reversed = True

# Sketch on XY plane
sketch15 = body.newObject("Sketcher::SketchObject", "Sketch014")
sketch15.AttachmentSupport = (doc.getObject("XY_Plane"), [""])
sketch15.MapMode = "FlatFace"
sketch15.AttachmentOffset = App.Placement(App.Vector(0, 0, -2.657675), App.Rotation())
sketch15.addGeometry([
    Part.LineSegment(App.Vector(-72, -25, 0), App.Vector(-72, 0, 0)),
    Part.LineSegment(App.Vector(-72, 0, 0), App.Vector(-43, 0, 0)),
    Part.LineSegment(App.Vector(-43, 0, 0), App.Vector(-43, -25, 0)),
    Part.LineSegment(App.Vector(-43, -25, 0), App.Vector(-72, -25, 0)),
], False)
sketch15.addConstraint([
    Sketcher.Constraint("Coincident", 0, 2, 1, 1),
    Sketcher.Constraint("Coincident", 1, 2, 2, 1),
    Sketcher.Constraint("Coincident", 2, 2, 3, 1),
    Sketcher.Constraint("Coincident", 3, 2, 0, 1),
    Sketcher.Constraint("Vertical", 0),
    Sketcher.Constraint("Horizontal", 1),
    Sketcher.Constraint("Vertical", 2),
    Sketcher.Constraint("Horizontal", 3),
    Sketcher.Constraint("PointOnObject", 0, 2, -1),
    Sketcher.Constraint("DistanceY", 0, 1, 0, 2, Q("1 in")),
    Sketcher.Constraint("DistanceX", 1, 2, -1, 1, Q("42.904299 mm")),
    Sketcher.Constraint("DistanceX", 1, 1, 1, 2, Q("29.132675 mm")),
])
sketch15.setExpression("Constraints[9]", "Params.sketch15_height")
pad15 = body.newObject("PartDesign::Pad", "Pad014")
pad15.Profile = sketch15
pad15.setExpression("Length", "Params.pad15_length")
pad15.Reversed = True

# Sketch on XY plane
sketch16 = body.newObject("Sketcher::SketchObject", "Sketch015")
sketch16.AttachmentSupport = (doc.getObject("XY_Plane"), [""])
sketch16.MapMode = "FlatFace"
sketch16.AttachmentOffset = App.Placement(App.Vector(0, 0, -2.657675), App.Rotation())
sketch16.addGeometry([
    Part.LineSegment(App.Vector(43, -25, 0), App.Vector(43, 0, 0)),
    Part.LineSegment(App.Vector(43, 0, 0), App.Vector(73, 0, 0)),
    Part.LineSegment(App.Vector(73, 0, 0), App.Vector(73, -25, 0)),
    Part.LineSegment(App.Vector(73, -25, 0), App.Vector(43, -25, 0)),
], False)
sketch16.addConstraint([
    Sketcher.Constraint("Coincident", 0, 2, 1, 1),
    Sketcher.Constraint("Coincident", 1, 2, 2, 1),
    Sketcher.Constraint("Coincident", 2, 2, 3, 1),
    Sketcher.Constraint("Coincident", 3, 2, 0, 1),
    Sketcher.Constraint("Vertical", 0),
    Sketcher.Constraint("Horizontal", 1),
    Sketcher.Constraint("Vertical", 2),
    Sketcher.Constraint("Horizontal", 3),
    Sketcher.Constraint("PointOnObject", 0, 2, -1),
    Sketcher.Constraint("DistanceY", 0, 1, 0, 2, Q("1 in")),
    Sketcher.Constraint("DistanceX", 1, 1, 1, 2, Q("29.615082 mm")),
    Sketcher.Constraint("DistanceX", -1, 1, 0, 2, Q("42.981409 mm")),
])
sketch16.setExpression("Constraints[9]", "Params.sketch16_height")
pad16 = body.newObject("PartDesign::Pad", "Pad015")
pad16.Profile = sketch16
pad16.setExpression("Length", "Params.pad16_length")
pad16.Reversed = True

doc.recompute()
